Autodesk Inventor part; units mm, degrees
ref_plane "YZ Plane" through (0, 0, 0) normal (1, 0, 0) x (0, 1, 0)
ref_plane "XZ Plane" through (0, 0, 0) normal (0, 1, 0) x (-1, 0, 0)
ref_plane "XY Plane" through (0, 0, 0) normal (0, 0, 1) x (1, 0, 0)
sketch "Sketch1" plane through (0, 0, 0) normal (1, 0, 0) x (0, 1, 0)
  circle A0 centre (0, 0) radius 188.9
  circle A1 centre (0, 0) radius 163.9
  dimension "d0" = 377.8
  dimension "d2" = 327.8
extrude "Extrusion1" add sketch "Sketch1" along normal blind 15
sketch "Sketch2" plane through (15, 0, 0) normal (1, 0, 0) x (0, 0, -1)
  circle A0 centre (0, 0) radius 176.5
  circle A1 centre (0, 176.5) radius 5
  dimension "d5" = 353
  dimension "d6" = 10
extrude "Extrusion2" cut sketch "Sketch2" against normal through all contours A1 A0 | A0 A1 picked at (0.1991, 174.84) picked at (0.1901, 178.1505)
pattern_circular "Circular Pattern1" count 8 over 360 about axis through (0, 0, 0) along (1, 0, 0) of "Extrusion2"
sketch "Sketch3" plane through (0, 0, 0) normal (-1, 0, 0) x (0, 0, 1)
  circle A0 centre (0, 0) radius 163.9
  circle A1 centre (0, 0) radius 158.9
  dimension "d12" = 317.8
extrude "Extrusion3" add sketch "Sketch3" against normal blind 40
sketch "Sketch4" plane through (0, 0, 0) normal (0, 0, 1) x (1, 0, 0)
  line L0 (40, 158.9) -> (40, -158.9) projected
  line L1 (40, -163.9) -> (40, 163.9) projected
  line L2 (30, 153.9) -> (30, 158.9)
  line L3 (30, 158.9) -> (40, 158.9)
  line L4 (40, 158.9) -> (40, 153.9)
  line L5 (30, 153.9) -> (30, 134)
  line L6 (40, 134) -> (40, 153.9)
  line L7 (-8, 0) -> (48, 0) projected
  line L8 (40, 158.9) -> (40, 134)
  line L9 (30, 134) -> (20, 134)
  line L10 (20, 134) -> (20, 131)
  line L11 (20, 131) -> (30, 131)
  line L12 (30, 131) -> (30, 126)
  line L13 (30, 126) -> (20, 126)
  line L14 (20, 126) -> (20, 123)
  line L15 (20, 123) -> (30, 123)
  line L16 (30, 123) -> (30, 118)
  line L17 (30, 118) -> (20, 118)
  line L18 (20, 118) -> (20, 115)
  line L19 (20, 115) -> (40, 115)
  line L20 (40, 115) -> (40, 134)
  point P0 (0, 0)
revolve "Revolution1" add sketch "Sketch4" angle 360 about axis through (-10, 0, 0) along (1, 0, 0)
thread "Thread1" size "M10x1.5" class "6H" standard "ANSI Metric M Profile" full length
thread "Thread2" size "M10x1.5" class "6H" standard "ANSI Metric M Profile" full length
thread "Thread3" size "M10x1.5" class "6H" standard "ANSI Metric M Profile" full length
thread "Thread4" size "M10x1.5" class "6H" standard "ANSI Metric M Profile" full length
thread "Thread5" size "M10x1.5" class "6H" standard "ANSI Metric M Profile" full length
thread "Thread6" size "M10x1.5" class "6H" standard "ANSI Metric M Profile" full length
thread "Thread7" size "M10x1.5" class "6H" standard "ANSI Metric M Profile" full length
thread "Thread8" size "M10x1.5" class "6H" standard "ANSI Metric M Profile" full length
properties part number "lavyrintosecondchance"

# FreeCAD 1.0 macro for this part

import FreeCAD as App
import Part
import Sketcher
from FreeCAD import Vector
Q = App.Units.Quantity

doc = App.newDocument("Part")
body = doc.addObject("PartDesign::Body", "Body")

# Sketch on YZ plane
sketch1 = body.newObject("Sketcher::SketchObject", "Sketch")
sketch1.AttachmentSupport = (doc.getObject("YZ_Plane"), [""])
sketch1.MapMode = "FlatFace"
sketch1.addGeometry(Part.Circle(Vector(0, 0, 0), Vector(0, 0, 1), 189), False)
sketch1.addGeometry(Part.Circle(Vector(0, 0, 0), Vector(0, 0, 1), 164), False)
sketch1.addConstraint(Sketcher.Constraint("Coincident", 0, 3, -1, 1))
sketch1.addConstraint(Sketcher.Constraint("Coincident", 1, 3, -1, 1))
sketch1.addConstraint(Sketcher.Constraint("Diameter", 0, Q("377.8 mm")))
sketch1.addConstraint(Sketcher.Constraint("Diameter", 1, Q("327.8 mm")))
pad1 = body.newObject("PartDesign::Pad", "Pad")
pad1.Profile = sketch1
pad1.Length = 15

# Sketch on YZ plane
sketch2 = body.newObject("Sketcher::SketchObject", "Sketch001")
sketch2.AttachmentSupport = (doc.getObject("YZ_Plane"), [""])
sketch2.MapMode = "FlatFace"
sketch2.AttachmentOffset = App.Placement(Vector(0, 0, 15), App.Rotation())
sketch2.addGeometry(Part.Circle(Vector(176, 0, 0), Vector(0, 0, 1), 5), False)
sketch2.addConstraint(Sketcher.Constraint("PointOnObject", 0, 3, -1))
sketch2.addConstraint(Sketcher.Constraint("Diameter", 0, Q("10 mm")))
sketch2.addConstraint(Sketcher.Constraint("DistanceX", -1, 1, 0, 3, Q("176.5 mm")))
pocket1 = body.newObject("PartDesign::Pocket", "Pocket")
pocket1.Profile = sketch2
pocket1.Type = "ThroughAll"
doc.recompute()

polarpattern = body.newObject("PartDesign::PolarPattern", "PolarPattern")
polarpattern.Originals = [pocket1]
polarpattern.Axis = (doc.getObject("X_Axis"), [""])
polarpattern.Angle = 360
polarpattern.Occurrences = 8
body.Tip = polarpattern

# Sketch on YZ plane
sketch3 = body.newObject("Sketcher::SketchObject", "Sketch002")
sketch3.AttachmentSupport = (doc.getObject("YZ_Plane"), [""])
sketch3.MapMode = "FlatFace"
sketch3.addGeometry(Part.Circle(Vector(0, 0, 0), Vector(0, 0, 1), 164), False)
sketch3.addGeometry(Part.Circle(Vector(0, 0, 0), Vector(0, 0, 1), 159), False)
sketch3.addConstraint(Sketcher.Constraint("Coincident", 0, 3, -1, 1))
sketch3.addConstraint(Sketcher.Constraint("Coincident", 1, 3, -1, 1))
sketch3.addConstraint(Sketcher.Constraint("Diameter", 1, Q("317.8 mm")))
sketch3.addConstraint(Sketcher.Constraint("Diameter", 0, Q("327.8 mm")))
pad2 = body.newObject("PartDesign::Pad", "Pad001")
pad2.Profile = sketch3
pad2.Length = 40

# Sketch on XY plane
sketch4 = body.newObject("Sketcher::SketchObject", "Sketch003")
sketch4.AttachmentSupport = (doc.getObject("XY_Plane"), [""])
sketch4.MapMode = "FlatFace"
sketch4.addGeometry(Part.LineSegment(Vector(40, 115, 0), Vector(40, 158.9, 0)), False)
sketch4.addGeometry(Part.LineSegment(Vector(40, 158.9, 0), Vector(30, 158.9, 0)), False)
sketch4.addGeometry(Part.LineSegment(Vector(30, 158.9, 0), Vector(30, 134, 0)), False)
sketch4.addGeometry(Part.LineSegment(Vector(30, 134, 0), Vector(20, 134, 0)), False)
sketch4.addGeometry(Part.LineSegment(Vector(20, 134, 0), Vector(20, 131, 0)), False)
sketch4.addGeometry(Part.LineSegment(Vector(20, 131, 0), Vector(30, 131, 0)), False)
sketch4.addGeometry(Part.LineSegment(Vector(30, 131, 0), Vector(30, 126, 0)), False)
sketch4.addGeometry(Part.LineSegment(Vector(30, 126, 0), Vector(20, 126, 0)), False)
sketch4.addGeometry(Part.LineSegment(Vector(20, 126, 0), Vector(20, 123, 0)), False)
sketch4.addGeometry(Part.LineSegment(Vector(20, 123, 0), Vector(30, 123, 0)), False)
sketch4.addGeometry(Part.LineSegment(Vector(30, 123, 0), Vector(30, 118, 0)), False)
sketch4.addGeometry(Part.LineSegment(Vector(30, 118, 0), Vector(20, 118, 0)), False)
sketch4.addGeometry(Part.LineSegment(Vector(20, 118, 0), Vector(20, 115, 0)), False)
sketch4.addGeometry(Part.LineSegment(Vector(20, 115, 0), Vector(40, 115, 0)), False)
sketch4.addConstraint(Sketcher.Constraint("Coincident", 0, 2, 1, 1))
sketch4.addConstraint(Sketcher.Constraint("Coincident", 1, 2, 2, 1))
sketch4.addConstraint(Sketcher.Constraint("Coincident", 2, 2, 3, 1))
sketch4.addConstraint(Sketcher.Constraint("Coincident", 3, 2, 4, 1))
sketch4.addConstraint(Sketcher.Constraint("Coincident", 4, 2, 5, 1))
sketch4.addConstraint(Sketcher.Constraint("Coincident", 5, 2, 6, 1))
sketch4.addConstraint(Sketcher.Constraint("Coincident", 6, 2, 7, 1))
sketch4.addConstraint(Sketcher.Constraint("Coincident", 7, 2, 8, 1))
sketch4.addConstraint(Sketcher.Constraint("Coincident", 8, 2, 9, 1))
sketch4.addConstraint(Sketcher.Constraint("Coincident", 9, 2, 10, 1))
sketch4.addConstraint(Sketcher.Constraint("Coincident", 10, 2, 11, 1))
sketch4.addConstraint(Sketcher.Constraint("Coincident", 11, 2, 12, 1))
sketch4.addConstraint(Sketcher.Constraint("Coincident", 12, 2, 13, 1))
sketch4.addConstraint(Sketcher.Constraint("Coincident", 13, 2, 0, 1))
sketch4.addConstraint(Sketcher.Constraint("Vertical", 0))
sketch4.addConstraint(Sketcher.Constraint("Horizontal", 1))
sketch4.addConstraint(Sketcher.Constraint("Vertical", 2))
sketch4.addConstraint(Sketcher.Constraint("Horizontal", 3))
sketch4.addConstraint(Sketcher.Constraint("Vertical", 4))
sketch4.addConstraint(Sketcher.Constraint("Horizontal", 5))
sketch4.addConstraint(Sketcher.Constraint("Vertical", 6))
sketch4.addConstraint(Sketcher.Constraint("Horizontal", 7))
sketch4.addConstraint(Sketcher.Constraint("Vertical", 8))
sketch4.addConstraint(Sketcher.Constraint("Horizontal", 9))
sketch4.addConstraint(Sketcher.Constraint("Vertical", 10))
sketch4.addConstraint(Sketcher.Constraint("Horizontal", 11))
sketch4.addConstraint(Sketcher.Constraint("Vertical", 12))
sketch4.addConstraint(Sketcher.Constraint("Horizontal", 13))
sketch4.addConstraint(Sketcher.Constraint("Vertical", 2, 2, 5, 2))
sketch4.addConstraint(Sketcher.Constraint("Vertical", 4, 2, 7, 2))
sketch4.addConstraint(Sketcher.Constraint("Vertical", 6, 2, 9, 2))
sketch4.addConstraint(Sketcher.Constraint("Vertical", 8, 2, 11, 2))
sketch4.addConstraint(Sketcher.Constraint("Equal", 1, 3))
sketch4.addConstraint(Sketcher.Constraint("Equal", 4, 8))
sketch4.addConstraint(Sketcher.Constraint("Equal", 6, 10))
sketch4.addConstraint(Sketcher.Constraint("Equal", 8, 12))
sketch4.addConstraint(Sketcher.Constraint("DistanceX", 1, 2, 1, 1, Q("10 mm")))
sketch4.addConstraint(Sketcher.Constraint("DistanceY", 4, 2, 4, 1, Q("3 mm")))
sketch4.addConstraint(Sketcher.Constraint("DistanceY", 6, 2, 6, 1, Q("5 mm")))
sketch4.addConstraint(Sketcher.Constraint("DistanceY", 0, 1, 0, 2, Q("43.9 mm")))
sketch4.addConstraint(Sketcher.Constraint("DistanceX", -1, 1, 0, 2, Q("40 mm")))
sketch4.addConstraint(Sketcher.Constraint("DistanceY", -1, 1, 2, 2, Q("134 mm")))
revolution = body.newObject("PartDesign::Revolution", "Revolution")
revolution.Profile = sketch4
revolution.ReferenceAxis = (sketch4, ["H_Axis"])
revolution.Angle = 360

doc.recompute()
